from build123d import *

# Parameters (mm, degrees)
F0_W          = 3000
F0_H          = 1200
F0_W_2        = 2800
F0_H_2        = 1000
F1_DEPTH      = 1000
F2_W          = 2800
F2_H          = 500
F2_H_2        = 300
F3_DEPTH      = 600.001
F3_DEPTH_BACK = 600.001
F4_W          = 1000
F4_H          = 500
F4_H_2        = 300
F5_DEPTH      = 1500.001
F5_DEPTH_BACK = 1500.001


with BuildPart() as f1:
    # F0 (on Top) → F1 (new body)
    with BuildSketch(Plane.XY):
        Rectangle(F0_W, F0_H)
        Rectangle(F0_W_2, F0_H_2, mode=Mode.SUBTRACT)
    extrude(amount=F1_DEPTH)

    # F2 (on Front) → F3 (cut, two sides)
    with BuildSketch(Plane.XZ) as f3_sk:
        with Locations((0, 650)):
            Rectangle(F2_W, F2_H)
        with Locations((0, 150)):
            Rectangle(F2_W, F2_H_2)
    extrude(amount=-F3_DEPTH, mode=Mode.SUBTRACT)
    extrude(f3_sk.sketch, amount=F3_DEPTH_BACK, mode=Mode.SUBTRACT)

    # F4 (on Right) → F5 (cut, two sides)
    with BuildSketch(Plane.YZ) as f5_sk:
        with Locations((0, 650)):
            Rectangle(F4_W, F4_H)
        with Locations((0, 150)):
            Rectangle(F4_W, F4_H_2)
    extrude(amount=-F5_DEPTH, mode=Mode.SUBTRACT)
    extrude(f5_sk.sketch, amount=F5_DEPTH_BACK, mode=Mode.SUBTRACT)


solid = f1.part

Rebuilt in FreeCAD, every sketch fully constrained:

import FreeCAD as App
import Part
import Sketcher

V = App.Vector
Q = App.Units.Quantity

doc = App.newDocument("Part")
body = doc.addObject("PartDesign::Body", "Body")

# Sketch on XY plane
sketch1 = body.newObject("Sketcher::SketchObject", "Sketch")
sketch1.AttachmentSupport = (doc.getObject("XY_Plane"), [""])
sketch1.MapMode = "FlatFace"
sketch1.addGeometry([
    Part.LineSegment(V(-1500, 600, 0), V(-1500, -600, 0)),  # 0
    Part.LineSegment(V(-1500, -600, 0), V(1500, -600, 0)),  # 1
    Part.LineSegment(V(1500, -600, 0), V(1500, 600, 0)),  # 2
    Part.LineSegment(V(1500, 600, 0), V(-1500, 600, 0)),  # 3
    Part.LineSegment(V(1400, -500, 0), V(-1400, -500, 0)),  # 4
    Part.LineSegment(V(-1400, -500, 0), V(-1400, 500, 0)),  # 5
    Part.LineSegment(V(-1400, 500, 0), V(1400, 500, 0)),  # 6
    Part.LineSegment(V(1400, 500, 0), V(1400, -500, 0)),  # 7
], False)
sketch1.addConstraint([
    Sketcher.Constraint("Coincident", 0, 2, 1, 1),
    Sketcher.Constraint("Coincident", 1, 2, 2, 1),
    Sketcher.Constraint("Coincident", 2, 2, 3, 1),
    Sketcher.Constraint("Coincident", 3, 2, 0, 1),
    Sketcher.Constraint("Coincident", 4, 2, 5, 1),
    Sketcher.Constraint("Coincident", 5, 2, 6, 1),
    Sketcher.Constraint("Coincident", 6, 2, 7, 1),
    Sketcher.Constraint("Coincident", 7, 2, 4, 1),
    Sketcher.Constraint("Vertical", 0),
    Sketcher.Constraint("Horizontal", 1),
    Sketcher.Constraint("Vertical", 2),
    Sketcher.Constraint("Horizontal", 3),
    Sketcher.Constraint("Horizontal", 4),
    Sketcher.Constraint("Vertical", 5),
    Sketcher.Constraint("Horizontal", 6),
    Sketcher.Constraint("Vertical", 7),
    Sketcher.Constraint("Symmetric", 0, 2, 2, 2, -1, 1),
    Sketcher.Constraint("Symmetric", 4, 2, 6, 2, -1, 1),
    Sketcher.Constraint("DistanceX", 1, 1, 1, 2, Q("3000 mm")),
    Sketcher.Constraint("DistanceX", 4, 2, 4, 1, Q("2800 mm")),
    Sketcher.Constraint("DistanceY", 0, 2, 0, 1, Q("1200 mm")),
    Sketcher.Constraint("DistanceY", 5, 1, 5, 2, Q("1000 mm")),
])
pad1 = body.newObject("PartDesign::Pad", "Pad")
pad1.Profile = sketch1
pad1.Length = 1000

# Sketch on XZ plane
sketch2 = body.newObject("Sketcher::SketchObject", "Sketch001")
sketch2.AttachmentSupport = (doc.getObject("XZ_Plane"), [""])
sketch2.MapMode = "FlatFace"
sketch2.addGeometry([
    Part.LineSegment(V(-1400, 900, 0), V(-1400, 400, 0)),  # 0
    Part.LineSegment(V(-1400, 400, 0), V(1400, 400, 0)),  # 1
    Part.LineSegment(V(1400, 400, 0), V(1400, 900, 0)),  # 2
    Part.LineSegment(V(1400, 900, 0), V(-1400, 900, 0)),  # 3
    Part.LineSegment(V(-1400, 300, 0), V(-1400, 0, 0)),  # 4
    Part.LineSegment(V(-1400, 0, 0), V(1400, 0, 0)),  # 5
    Part.LineSegment(V(1400, 0, 0), V(1400, 300, 0)),  # 6
    Part.LineSegment(V(1400, 300, 0), V(-1400, 300, 0)),  # 7
], False)
sketch2.addConstraint([
    Sketcher.Constraint("Coincident", 0, 2, 1, 1),
    Sketcher.Constraint("Coincident", 1, 2, 2, 1),
    Sketcher.Constraint("Coincident", 2, 2, 3, 1),
    Sketcher.Constraint("Coincident", 3, 2, 0, 1),
    Sketcher.Constraint("Coincident", 4, 2, 5, 1),
    Sketcher.Constraint("Coincident", 5, 2, 6, 1),
    Sketcher.Constraint("Coincident", 6, 2, 7, 1),
    Sketcher.Constraint("Coincident", 7, 2, 4, 1),
    Sketcher.Constraint("Vertical", 0),
    Sketcher.Constraint("Horizontal", 1),
    Sketcher.Constraint("Vertical", 2),
    Sketcher.Constraint("Horizontal", 3),
    Sketcher.Constraint("Vertical", 4),
    Sketcher.Constraint("Horizontal", 5),
    Sketcher.Constraint("Vertical", 6),
    Sketcher.Constraint("Horizontal", 7),
    Sketcher.Constraint("Symmetric", 4, 2, 5, 2, -1, 1),
    Sketcher.Constraint("Vertical", 3, 2, 4, 2),
    Sketcher.Constraint("Vertical", 2, 2, 5, 2),
    Sketcher.Constraint("DistanceX", 1, 1, 1, 2, Q("2800 mm")),
    Sketcher.Constraint("DistanceY", 0, 2, 0, 1, Q("500 mm")),
    Sketcher.Constraint("DistanceY", 4, 2, 4, 1, Q("300 mm")),
    Sketcher.Constraint("DistanceY", -1, 1, 0, 2, Q("400 mm")),
])
pocket1 = body.newObject("PartDesign::Pocket", "Pocket")
pocket1.Profile = sketch2
pocket1.Type = "ThroughAll"
pocket1.Midplane = True

# Sketch on YZ plane
sketch3 = body.newObject("Sketcher::SketchObject", "Sketch002")
sketch3.AttachmentSupport = (doc.getObject("YZ_Plane"), [""])
sketch3.MapMode = "FlatFace"
sketch3.addGeometry([
    Part.LineSegment(V(-500, 900, 0), V(-500, 400, 0)),  # 0
    Part.LineSegment(V(-500, 400, 0), V(500, 400, 0)),  # 1
    Part.LineSegment(V(500, 400, 0), V(500, 900, 0)),  # 2
    Part.LineSegment(V(500, 900, 0), V(-500, 900, 0)),  # 3
    Part.LineSegment(V(-500, 300, 0), V(-500, 0, 0)),  # 4
    Part.LineSegment(V(-500, 0, 0), V(500, 0, 0)),  # 5
    Part.LineSegment(V(500, 0, 0), V(500, 300, 0)),  # 6
    Part.LineSegment(V(500, 300, 0), V(-500, 300, 0)),  # 7
], False)
sketch3.addConstraint([
    Sketcher.Constraint("Coincident", 0, 2, 1, 1),
    Sketcher.Constraint("Coincident", 1, 2, 2, 1),
    Sketcher.Constraint("Coincident", 2, 2, 3, 1),
    Sketcher.Constraint("Coincident", 3, 2, 0, 1),
    Sketcher.Constraint("Coincident", 4, 2, 5, 1),
    Sketcher.Constraint("Coincident", 5, 2, 6, 1),
    Sketcher.Constraint("Coincident", 6, 2, 7, 1),
    Sketcher.Constraint("Coincident", 7, 2, 4, 1),
    Sketcher.Constraint("Vertical", 0),
    Sketcher.Constraint("Horizontal", 1),
    Sketcher.Constraint("Vertical", 2),
    Sketcher.Constraint("Horizontal", 3),
    Sketcher.Constraint("Vertical", 4),
    Sketcher.Constraint("Horizontal", 5),
    Sketcher.Constraint("Vertical", 6),
    Sketcher.Constraint("Horizontal", 7),
    Sketcher.Constraint("Symmetric", 4, 2, 5, 2, -1, 1),
    Sketcher.Constraint("Vertical", 3, 2, 4, 2),
    Sketcher.Constraint("Vertical", 2, 2, 5, 2),
    Sketcher.Constraint("DistanceX", 1, 1, 1, 2, Q("1000 mm")),
    Sketcher.Constraint("DistanceY", 0, 2, 0, 1, Q("500 mm")),
    Sketcher.Constraint("DistanceY", 4, 2, 4, 1, Q("300 mm")),
    Sketcher.Constraint("DistanceY", -1, 1, 0, 2, Q("400 mm")),
])
pocket2 = body.newObject("PartDesign::Pocket", "Pocket001")
pocket2.Profile = sketch3
pocket2.Type = "ThroughAll"
pocket2.Midplane = True

doc.recompute()
